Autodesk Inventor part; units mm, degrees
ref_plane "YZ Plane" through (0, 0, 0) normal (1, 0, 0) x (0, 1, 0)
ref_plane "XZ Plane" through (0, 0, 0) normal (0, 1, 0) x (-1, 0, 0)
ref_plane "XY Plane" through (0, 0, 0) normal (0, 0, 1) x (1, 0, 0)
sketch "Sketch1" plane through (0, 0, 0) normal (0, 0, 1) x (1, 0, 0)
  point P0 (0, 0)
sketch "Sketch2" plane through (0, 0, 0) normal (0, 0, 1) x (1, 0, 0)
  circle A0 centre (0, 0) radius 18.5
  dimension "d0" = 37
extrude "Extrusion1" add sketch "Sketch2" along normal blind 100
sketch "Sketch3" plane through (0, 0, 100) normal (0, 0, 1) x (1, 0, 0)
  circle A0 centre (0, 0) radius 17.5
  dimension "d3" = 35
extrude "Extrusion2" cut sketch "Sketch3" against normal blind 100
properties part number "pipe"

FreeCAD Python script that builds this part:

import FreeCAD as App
import Part
import Sketcher
Q = App.Units.Quantity

doc = App.newDocument("Part")
body = doc.addObject("PartDesign::Body", "Body")

# Sketch on XY plane
sketch1 = body.newObject("Sketcher::SketchObject", "Sketch")
sketch1.AttachmentSupport = (doc.getObject("XY_Plane"), [""])
sketch1.MapMode = "FlatFace"
sketch1.addGeometry(Part.Circle(App.Vector(0, 0, 0), App.Vector(0, 0, 1), 18.5), False)
sketch1.addConstraint([
    Sketcher.Constraint("Coincident", 0, 3, -1, 1),
    Sketcher.Constraint("Diameter", 0, Q("37 mm")),
])
pad1 = body.newObject("PartDesign::Pad", "Pad")
pad1.Profile = sketch1
pad1.Length = 100

# Sketch on XY plane
sketch2 = body.newObject("Sketcher::SketchObject", "Sketch001")
sketch2.AttachmentSupport = (doc.getObject("XY_Plane"), [""])
sketch2.MapMode = "FlatFace"
sketch2.AttachmentOffset = App.Placement(App.Vector(0, 0, 100), App.Rotation())
sketch2.addGeometry(Part.Circle(App.Vector(0, 0, 0), App.Vector(0, 0, 1), 17.5), False)
sketch2.addConstraint([
    Sketcher.Constraint("Coincident", 0, 3, -1, 1),
    Sketcher.Constraint("Diameter", 0, Q("35 mm")),
])
pocket1 = body.newObject("PartDesign::Pocket", "Pocket")
pocket1.Profile = sketch2
pocket1.Length = 100

doc.recompute()
